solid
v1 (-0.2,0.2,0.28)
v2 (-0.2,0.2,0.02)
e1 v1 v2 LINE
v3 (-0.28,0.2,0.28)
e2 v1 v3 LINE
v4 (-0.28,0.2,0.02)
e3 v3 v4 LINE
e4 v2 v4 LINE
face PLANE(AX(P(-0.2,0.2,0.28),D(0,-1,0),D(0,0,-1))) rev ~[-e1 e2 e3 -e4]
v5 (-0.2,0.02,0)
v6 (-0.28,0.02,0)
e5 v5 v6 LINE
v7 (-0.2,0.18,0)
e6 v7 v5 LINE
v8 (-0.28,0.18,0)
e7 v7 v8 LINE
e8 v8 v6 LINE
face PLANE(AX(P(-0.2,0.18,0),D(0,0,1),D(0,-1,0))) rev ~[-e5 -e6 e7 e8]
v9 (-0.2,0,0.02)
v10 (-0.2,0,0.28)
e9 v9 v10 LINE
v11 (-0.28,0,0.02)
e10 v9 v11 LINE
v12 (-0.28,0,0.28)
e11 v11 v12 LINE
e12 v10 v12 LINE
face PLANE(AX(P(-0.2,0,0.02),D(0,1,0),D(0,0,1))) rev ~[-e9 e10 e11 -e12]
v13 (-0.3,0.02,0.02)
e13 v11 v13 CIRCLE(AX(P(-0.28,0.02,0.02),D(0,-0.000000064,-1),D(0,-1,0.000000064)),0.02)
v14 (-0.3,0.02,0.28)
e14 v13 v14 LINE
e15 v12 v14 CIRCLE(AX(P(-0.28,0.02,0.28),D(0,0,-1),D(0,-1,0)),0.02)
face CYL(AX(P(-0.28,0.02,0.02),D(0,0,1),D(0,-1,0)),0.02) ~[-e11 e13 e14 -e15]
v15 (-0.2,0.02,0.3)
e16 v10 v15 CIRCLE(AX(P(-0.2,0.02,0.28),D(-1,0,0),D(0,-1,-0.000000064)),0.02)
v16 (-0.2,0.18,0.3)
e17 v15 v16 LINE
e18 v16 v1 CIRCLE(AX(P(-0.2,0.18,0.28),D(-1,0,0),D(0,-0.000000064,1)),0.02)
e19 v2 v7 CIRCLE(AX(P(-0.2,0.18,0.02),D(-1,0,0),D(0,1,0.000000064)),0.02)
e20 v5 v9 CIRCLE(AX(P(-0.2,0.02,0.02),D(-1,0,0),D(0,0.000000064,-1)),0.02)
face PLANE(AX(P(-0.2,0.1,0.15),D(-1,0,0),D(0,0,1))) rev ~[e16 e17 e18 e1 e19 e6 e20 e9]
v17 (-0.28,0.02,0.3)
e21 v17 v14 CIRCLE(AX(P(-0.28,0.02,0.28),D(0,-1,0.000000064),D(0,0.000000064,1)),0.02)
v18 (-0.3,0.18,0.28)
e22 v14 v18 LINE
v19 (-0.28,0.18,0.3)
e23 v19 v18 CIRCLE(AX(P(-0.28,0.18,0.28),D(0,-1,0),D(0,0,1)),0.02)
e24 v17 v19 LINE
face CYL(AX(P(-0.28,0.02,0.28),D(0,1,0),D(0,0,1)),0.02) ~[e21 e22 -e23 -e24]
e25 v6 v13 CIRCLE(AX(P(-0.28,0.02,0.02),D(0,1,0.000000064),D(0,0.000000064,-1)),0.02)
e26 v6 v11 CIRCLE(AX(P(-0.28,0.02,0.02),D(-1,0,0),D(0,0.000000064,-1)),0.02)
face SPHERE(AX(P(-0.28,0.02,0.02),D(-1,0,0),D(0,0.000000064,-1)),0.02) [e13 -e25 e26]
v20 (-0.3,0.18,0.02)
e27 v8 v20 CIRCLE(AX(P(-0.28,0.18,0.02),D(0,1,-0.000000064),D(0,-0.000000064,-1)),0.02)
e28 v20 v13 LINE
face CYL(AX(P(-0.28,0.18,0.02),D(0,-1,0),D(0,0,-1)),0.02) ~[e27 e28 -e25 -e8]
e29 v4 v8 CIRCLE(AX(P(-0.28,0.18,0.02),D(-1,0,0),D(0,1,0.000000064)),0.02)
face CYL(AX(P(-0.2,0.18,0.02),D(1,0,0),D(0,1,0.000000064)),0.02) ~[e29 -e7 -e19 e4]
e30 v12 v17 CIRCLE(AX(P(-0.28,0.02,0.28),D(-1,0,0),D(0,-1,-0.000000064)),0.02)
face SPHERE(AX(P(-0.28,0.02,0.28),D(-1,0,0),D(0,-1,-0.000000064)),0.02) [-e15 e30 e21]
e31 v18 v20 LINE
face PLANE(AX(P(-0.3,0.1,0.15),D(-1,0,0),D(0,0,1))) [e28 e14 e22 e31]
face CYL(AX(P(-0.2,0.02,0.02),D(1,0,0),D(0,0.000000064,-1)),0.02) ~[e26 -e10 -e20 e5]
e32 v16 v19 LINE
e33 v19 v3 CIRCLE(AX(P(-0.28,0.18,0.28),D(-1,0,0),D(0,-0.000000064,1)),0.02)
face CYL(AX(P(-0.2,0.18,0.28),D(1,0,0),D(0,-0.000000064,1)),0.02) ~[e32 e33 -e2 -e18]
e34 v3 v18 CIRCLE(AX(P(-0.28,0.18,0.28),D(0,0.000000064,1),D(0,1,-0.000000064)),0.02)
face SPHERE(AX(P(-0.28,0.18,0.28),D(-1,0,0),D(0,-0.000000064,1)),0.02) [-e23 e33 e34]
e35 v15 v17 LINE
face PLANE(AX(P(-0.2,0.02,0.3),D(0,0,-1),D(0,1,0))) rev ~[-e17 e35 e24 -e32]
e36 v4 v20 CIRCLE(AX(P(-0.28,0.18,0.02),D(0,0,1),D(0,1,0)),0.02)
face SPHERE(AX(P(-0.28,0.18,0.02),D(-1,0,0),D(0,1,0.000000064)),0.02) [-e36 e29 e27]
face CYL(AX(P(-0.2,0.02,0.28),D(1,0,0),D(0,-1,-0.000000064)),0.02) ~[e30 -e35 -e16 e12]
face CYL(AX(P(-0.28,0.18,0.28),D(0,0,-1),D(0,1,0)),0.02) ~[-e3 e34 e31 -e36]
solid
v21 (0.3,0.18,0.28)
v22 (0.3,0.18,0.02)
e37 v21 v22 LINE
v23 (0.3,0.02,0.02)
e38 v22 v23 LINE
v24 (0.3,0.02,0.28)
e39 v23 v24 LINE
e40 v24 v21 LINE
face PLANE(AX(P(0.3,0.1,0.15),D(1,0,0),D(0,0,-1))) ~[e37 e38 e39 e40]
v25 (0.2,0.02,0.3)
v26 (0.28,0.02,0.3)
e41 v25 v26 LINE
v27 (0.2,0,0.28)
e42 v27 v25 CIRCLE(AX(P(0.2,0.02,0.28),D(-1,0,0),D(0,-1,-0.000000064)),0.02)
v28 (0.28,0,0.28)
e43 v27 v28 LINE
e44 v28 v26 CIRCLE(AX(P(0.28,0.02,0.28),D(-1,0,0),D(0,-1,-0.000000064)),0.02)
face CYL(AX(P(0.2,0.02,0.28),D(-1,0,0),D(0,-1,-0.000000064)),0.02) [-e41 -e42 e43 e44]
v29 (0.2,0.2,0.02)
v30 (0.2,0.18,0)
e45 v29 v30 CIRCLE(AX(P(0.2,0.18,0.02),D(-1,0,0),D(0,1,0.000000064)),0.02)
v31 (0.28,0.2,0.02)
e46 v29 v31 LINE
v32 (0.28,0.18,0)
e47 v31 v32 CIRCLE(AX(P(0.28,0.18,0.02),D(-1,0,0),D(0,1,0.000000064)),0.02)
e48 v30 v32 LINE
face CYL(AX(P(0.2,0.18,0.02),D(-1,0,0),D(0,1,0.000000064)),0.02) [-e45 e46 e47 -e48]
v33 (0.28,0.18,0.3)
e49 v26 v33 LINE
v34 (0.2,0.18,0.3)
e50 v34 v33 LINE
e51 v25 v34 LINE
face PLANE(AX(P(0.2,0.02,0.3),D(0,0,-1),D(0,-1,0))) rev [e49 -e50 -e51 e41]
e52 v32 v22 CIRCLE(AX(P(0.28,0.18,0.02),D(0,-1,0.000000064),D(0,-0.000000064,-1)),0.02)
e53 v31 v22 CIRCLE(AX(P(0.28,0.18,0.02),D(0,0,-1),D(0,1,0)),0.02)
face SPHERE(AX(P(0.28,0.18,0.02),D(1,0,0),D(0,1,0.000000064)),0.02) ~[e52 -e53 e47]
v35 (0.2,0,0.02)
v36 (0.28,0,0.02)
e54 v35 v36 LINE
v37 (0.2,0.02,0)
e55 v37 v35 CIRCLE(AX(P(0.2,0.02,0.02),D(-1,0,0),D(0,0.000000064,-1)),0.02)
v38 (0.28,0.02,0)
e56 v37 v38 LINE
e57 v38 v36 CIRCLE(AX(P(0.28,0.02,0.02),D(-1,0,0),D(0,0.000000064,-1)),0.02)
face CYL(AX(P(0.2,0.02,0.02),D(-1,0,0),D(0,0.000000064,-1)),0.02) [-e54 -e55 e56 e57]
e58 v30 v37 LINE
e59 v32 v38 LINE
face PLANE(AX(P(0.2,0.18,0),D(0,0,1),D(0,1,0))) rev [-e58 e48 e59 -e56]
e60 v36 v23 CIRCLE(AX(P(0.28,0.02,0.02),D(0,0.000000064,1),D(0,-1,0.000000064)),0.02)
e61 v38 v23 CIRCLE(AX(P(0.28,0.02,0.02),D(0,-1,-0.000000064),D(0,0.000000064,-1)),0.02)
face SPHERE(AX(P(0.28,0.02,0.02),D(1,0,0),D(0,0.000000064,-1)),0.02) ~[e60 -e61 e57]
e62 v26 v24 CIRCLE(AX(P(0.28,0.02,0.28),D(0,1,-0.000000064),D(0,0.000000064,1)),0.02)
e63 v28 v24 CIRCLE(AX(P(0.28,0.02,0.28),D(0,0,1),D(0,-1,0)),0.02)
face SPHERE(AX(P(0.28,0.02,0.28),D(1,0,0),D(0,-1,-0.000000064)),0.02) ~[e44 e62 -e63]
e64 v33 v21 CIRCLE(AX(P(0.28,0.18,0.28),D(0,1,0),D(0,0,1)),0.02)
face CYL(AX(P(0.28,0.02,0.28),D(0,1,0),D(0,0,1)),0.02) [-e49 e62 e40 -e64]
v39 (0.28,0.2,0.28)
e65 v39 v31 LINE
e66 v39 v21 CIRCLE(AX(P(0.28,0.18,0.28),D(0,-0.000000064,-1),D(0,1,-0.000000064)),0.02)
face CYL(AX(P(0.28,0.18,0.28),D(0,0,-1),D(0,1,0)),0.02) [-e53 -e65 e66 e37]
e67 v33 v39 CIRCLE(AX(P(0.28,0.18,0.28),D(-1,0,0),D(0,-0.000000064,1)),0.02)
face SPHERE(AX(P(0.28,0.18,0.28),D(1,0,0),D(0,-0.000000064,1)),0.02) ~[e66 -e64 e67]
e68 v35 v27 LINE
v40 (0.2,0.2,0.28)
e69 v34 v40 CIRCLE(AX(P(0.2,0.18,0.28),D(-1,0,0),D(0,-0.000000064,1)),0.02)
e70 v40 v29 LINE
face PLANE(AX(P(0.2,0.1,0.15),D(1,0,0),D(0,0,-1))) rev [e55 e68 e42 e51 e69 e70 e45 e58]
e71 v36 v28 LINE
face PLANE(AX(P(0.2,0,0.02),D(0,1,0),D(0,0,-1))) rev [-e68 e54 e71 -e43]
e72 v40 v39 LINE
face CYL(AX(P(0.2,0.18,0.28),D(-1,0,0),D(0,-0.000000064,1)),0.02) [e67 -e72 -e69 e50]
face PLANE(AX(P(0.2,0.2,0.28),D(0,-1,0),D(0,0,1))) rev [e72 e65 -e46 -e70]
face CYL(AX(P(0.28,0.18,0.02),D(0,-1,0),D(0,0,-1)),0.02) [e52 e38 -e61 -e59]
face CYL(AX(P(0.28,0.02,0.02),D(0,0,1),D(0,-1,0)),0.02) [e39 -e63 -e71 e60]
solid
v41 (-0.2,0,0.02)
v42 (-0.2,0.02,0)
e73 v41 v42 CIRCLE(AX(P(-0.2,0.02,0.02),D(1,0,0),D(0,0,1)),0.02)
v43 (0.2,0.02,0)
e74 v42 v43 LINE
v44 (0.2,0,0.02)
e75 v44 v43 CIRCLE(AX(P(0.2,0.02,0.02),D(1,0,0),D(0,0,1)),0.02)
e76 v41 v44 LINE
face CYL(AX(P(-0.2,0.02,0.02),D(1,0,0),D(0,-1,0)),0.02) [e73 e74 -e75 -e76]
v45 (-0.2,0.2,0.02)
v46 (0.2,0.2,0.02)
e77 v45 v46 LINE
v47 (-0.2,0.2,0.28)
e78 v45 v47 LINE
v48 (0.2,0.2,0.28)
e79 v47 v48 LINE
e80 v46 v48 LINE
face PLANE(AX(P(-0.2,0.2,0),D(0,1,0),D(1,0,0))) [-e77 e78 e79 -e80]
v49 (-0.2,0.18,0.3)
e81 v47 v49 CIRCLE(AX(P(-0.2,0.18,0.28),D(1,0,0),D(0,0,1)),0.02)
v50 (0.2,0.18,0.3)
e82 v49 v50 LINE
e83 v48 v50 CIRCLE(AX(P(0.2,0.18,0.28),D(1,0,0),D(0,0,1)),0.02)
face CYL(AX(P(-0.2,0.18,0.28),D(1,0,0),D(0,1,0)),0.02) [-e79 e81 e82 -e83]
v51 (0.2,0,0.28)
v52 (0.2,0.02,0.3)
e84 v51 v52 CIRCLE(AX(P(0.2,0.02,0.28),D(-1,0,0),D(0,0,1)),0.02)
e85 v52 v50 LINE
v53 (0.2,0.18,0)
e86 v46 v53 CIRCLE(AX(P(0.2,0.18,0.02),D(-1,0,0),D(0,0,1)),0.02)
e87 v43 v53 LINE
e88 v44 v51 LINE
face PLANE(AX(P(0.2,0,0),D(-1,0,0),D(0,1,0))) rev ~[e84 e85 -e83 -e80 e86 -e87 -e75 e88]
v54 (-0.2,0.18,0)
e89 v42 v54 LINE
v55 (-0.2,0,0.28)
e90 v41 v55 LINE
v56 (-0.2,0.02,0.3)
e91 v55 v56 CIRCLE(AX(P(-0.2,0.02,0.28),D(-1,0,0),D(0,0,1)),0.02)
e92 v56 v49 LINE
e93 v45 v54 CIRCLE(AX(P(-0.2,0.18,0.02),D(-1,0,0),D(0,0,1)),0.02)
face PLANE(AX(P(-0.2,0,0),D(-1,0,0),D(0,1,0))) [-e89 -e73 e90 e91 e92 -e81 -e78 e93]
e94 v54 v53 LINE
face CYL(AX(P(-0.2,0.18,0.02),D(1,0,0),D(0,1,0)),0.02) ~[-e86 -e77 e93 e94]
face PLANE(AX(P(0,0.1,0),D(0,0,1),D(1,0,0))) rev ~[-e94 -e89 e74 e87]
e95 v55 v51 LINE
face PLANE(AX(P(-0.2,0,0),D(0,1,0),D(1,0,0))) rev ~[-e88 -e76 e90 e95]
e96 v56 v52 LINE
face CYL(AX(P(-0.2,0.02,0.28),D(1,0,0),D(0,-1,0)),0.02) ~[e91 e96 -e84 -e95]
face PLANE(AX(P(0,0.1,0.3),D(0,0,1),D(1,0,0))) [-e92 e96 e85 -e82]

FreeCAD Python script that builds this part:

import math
import FreeCAD as App
import Part
import Sketcher

V = App.Vector
Q = App.Units.Quantity


def edges_at(feature, points):
    """Names of the edges that pass closest to the given points."""
    edges = feature.Shape.Edges
    near = lambda p: min(range(len(edges)), key=lambda i: edges[i].distToShape(Part.Vertex(*p))[0])
    return sorted({f"Edge{near(p) + 1}" for p in points})


def add_polygon(sketch, points):
    """Adds a closed chain of lines whose ends are joined by coincident constraints."""
    first, n = sketch.GeometryCount, len(points)
    for a, b in zip(points, points[1:] + points[:1]):
        sketch.addGeometry(Part.LineSegment(App.Vector(*a, 0), App.Vector(*b, 0)), False)
    for i in range(n):
        sketch.addConstraint(Sketcher.Constraint("Coincident", first + i, 2, first + (i + 1) % n, 1))

doc = App.newDocument("Part")
params = doc.addObject("Spreadsheet::Sheet", "Params")
for row, (alias, value) in enumerate([
    ("sketch1_width", "0.4 mm"),
    ("sketch1_height", "0.2 mm"),
    ("pad1_length", "0.3 mm"),
    ("fillet_radius", "0.02 mm"),
    ("sketch2_radius", "0.02 mm"),
    ("sketch2_width", "0.16 mm"),
    ("sketch2_height", "0.26 mm"),
    ("pad2_length", "0.1 mm"),
    ("fillet2_radius", "0.02 mm"),
], start=1):
    params.set(f"A{row}", alias)
    params.set(f"B{row}", "=" + value)
    params.setAlias(f"B{row}", alias)

body = doc.addObject("PartDesign::Body", "Body")

sketch1 = doc.addObject("Sketcher::SketchObject", "Sketch")
body.addObject(sketch1)
sketch1.AttachmentSupport = (doc.XY_Plane, [""])
sketch1.MapMode = "FlatFace"
add_polygon(sketch1, [(-0.2, 0.2), (-0.2, 0), (0.2, 0), (0.2, 0.2)])
sketch1.addConstraint(Sketcher.Constraint("Vertical", 0))
sketch1.addConstraint(Sketcher.Constraint("Horizontal", 1))
sketch1.addConstraint(Sketcher.Constraint("Vertical", 2))
sketch1.addConstraint(Sketcher.Constraint("Horizontal", 3))
sketch1.addConstraint(Sketcher.Constraint("Symmetric", 0, 2, 1, 2, -1, 1))
sketch1.addConstraint(Sketcher.Constraint("DistanceX", 1, 1, 1, 2, Q("0.4 mm")))
sketch1.addConstraint(Sketcher.Constraint("DistanceY", 0, 2, 0, 1, Q("0.2 mm")))
sketch1.setExpression("Constraints[9]", "Params.sketch1_width")
sketch1.setExpression("Constraints[10]", "Params.sketch1_height")
pad1 = doc.addObject("PartDesign::Pad", "Pad")
body.addObject(pad1)
pad1.Profile = sketch1
pad1.setExpression("Length", "Params.pad1_length")
doc.recompute()

fillet = doc.addObject("PartDesign::Fillet", "Fillet")
body.addObject(fillet)
fillet.Base = (pad1, edges_at(pad1, [
    (0, 0.2, 0.3),
    (0, 0.2, 0),
    (0, 0, 0),
    (0, 0, 0.3),
]))
fillet.setExpression("Radius", "Params.fillet_radius")
body2 = doc.addObject("PartDesign::Body", "Body001")

sketch2 = doc.addObject("Sketcher::SketchObject", "Sketch001")
body2.addObject(sketch2)
sketch2.AttachmentSupport = (doc.getObject("YZ_Plane001"), [""])
sketch2.MapMode = "FlatFace"
sketch2.AttachmentOffset = App.Placement(V(0, 0, -0.2), App.Rotation())
sketch2.addGeometry(Part.LineSegment(V(0.18, 0, 0), V(0.02, 0, 0)), False)
sketch2.addGeometry(Part.ArcOfCircle(Part.Circle(V(0.02, 0.02, 0), V(0, 0, 1), 0.02), math.radians(180), math.radians(270)), False)
sketch2.addGeometry(Part.LineSegment(V(0, 0.02, 0), V(0, 0.28, 0)), False)
sketch2.addGeometry(Part.ArcOfCircle(Part.Circle(V(0.02, 0.28, 0), V(0, 0, 1), 0.02), math.radians(90), math.radians(180)), False)
sketch2.addGeometry(Part.LineSegment(V(0.02, 0.3, 0), V(0.18, 0.3, 0)), False)
sketch2.addGeometry(Part.ArcOfCircle(Part.Circle(V(0.18, 0.28, 0), V(0, 0, 1), 0.02), math.radians(0), math.radians(90)), False)
sketch2.addGeometry(Part.LineSegment(V(0.2, 0.28, 0), V(0.2, 0.02, 0)), False)
sketch2.addGeometry(Part.ArcOfCircle(Part.Circle(V(0.18, 0.02, 0), V(0, 0, 1), 0.02), math.radians(-90), math.radians(0)), False)
sketch2.addConstraint(Sketcher.Constraint("Tangent", 0, 2, 1, 2))
sketch2.addConstraint(Sketcher.Constraint("Tangent", 1, 1, 2, 1))
sketch2.addConstraint(Sketcher.Constraint("Tangent", 2, 2, 3, 2))
sketch2.addConstraint(Sketcher.Constraint("Tangent", 3, 1, 4, 1))
sketch2.addConstraint(Sketcher.Constraint("Tangent", 4, 2, 5, 2))
sketch2.addConstraint(Sketcher.Constraint("Tangent", 5, 1, 6, 1))
sketch2.addConstraint(Sketcher.Constraint("Tangent", 6, 2, 7, 2))
sketch2.addConstraint(Sketcher.Constraint("Tangent", 7, 1, 0, 1))
sketch2.addConstraint(Sketcher.Constraint("Horizontal", 0))
sketch2.addConstraint(Sketcher.Constraint("Vertical", 2))
sketch2.addConstraint(Sketcher.Constraint("Horizontal", 4))
sketch2.addConstraint(Sketcher.Constraint("Vertical", 6))
sketch2.addConstraint(Sketcher.Constraint("Equal", 1, 3))
sketch2.addConstraint(Sketcher.Constraint("Equal", 3, 5))
sketch2.addConstraint(Sketcher.Constraint("Equal", 5, 7))
sketch2.addConstraint(Sketcher.Constraint("PointOnObject", 0, 2, -1))
sketch2.addConstraint(Sketcher.Constraint("PointOnObject", 1, 1, -2))
sketch2.addConstraint(Sketcher.Constraint("Radius", 1, Q("0.02 mm")))
sketch2.addConstraint(Sketcher.Constraint("DistanceX", 0, 2, 0, 1, Q("0.16 mm")))
sketch2.addConstraint(Sketcher.Constraint("DistanceY", 2, 1, 2, 2, Q("0.26 mm")))
sketch2.setExpression("Constraints[17]", "Params.sketch2_radius")
sketch2.setExpression("Constraints[18]", "Params.sketch2_width")
sketch2.setExpression("Constraints[19]", "Params.sketch2_height")
pad2 = doc.addObject("PartDesign::Pad", "Pad001")
body2.addObject(pad2)
pad2.Profile = sketch2
pad2.setExpression("Length", "Params.pad2_length")
pad2.Reversed = True
doc.recompute()

fillet2 = doc.addObject("PartDesign::Fillet", "Fillet001")
body2.addObject(fillet2)
fillet2.Base = (pad2, edges_at(pad2, [
    (-0.3, 0.006, 0.006),
    (-0.3, 0, 0.15),
    (-0.3, 0.006, 0.294),
    (-0.3, 0.1, 0.3),
    (-0.3, 0.194, 0.294),
    (-0.3, 0.2, 0.15),
    (-0.3, 0.194, 0.006),
    (-0.3, 0.1, 0),
]))
fillet2.setExpression("Radius", "Params.fillet2_radius")
body3 = doc.addObject("PartDesign::Body", "Body002")
doc.recompute()

mirroring = doc.addObject("Part::Mirroring", "Mirroring")
mirroring.Source = body2
mirroring.Base = V(0, 0, 0)
mirroring.Normal = V(1, 0, 0)
body3.BaseFeature = mirroring
doc.recompute()
mirroring.Visibility = False

doc.recompute()
